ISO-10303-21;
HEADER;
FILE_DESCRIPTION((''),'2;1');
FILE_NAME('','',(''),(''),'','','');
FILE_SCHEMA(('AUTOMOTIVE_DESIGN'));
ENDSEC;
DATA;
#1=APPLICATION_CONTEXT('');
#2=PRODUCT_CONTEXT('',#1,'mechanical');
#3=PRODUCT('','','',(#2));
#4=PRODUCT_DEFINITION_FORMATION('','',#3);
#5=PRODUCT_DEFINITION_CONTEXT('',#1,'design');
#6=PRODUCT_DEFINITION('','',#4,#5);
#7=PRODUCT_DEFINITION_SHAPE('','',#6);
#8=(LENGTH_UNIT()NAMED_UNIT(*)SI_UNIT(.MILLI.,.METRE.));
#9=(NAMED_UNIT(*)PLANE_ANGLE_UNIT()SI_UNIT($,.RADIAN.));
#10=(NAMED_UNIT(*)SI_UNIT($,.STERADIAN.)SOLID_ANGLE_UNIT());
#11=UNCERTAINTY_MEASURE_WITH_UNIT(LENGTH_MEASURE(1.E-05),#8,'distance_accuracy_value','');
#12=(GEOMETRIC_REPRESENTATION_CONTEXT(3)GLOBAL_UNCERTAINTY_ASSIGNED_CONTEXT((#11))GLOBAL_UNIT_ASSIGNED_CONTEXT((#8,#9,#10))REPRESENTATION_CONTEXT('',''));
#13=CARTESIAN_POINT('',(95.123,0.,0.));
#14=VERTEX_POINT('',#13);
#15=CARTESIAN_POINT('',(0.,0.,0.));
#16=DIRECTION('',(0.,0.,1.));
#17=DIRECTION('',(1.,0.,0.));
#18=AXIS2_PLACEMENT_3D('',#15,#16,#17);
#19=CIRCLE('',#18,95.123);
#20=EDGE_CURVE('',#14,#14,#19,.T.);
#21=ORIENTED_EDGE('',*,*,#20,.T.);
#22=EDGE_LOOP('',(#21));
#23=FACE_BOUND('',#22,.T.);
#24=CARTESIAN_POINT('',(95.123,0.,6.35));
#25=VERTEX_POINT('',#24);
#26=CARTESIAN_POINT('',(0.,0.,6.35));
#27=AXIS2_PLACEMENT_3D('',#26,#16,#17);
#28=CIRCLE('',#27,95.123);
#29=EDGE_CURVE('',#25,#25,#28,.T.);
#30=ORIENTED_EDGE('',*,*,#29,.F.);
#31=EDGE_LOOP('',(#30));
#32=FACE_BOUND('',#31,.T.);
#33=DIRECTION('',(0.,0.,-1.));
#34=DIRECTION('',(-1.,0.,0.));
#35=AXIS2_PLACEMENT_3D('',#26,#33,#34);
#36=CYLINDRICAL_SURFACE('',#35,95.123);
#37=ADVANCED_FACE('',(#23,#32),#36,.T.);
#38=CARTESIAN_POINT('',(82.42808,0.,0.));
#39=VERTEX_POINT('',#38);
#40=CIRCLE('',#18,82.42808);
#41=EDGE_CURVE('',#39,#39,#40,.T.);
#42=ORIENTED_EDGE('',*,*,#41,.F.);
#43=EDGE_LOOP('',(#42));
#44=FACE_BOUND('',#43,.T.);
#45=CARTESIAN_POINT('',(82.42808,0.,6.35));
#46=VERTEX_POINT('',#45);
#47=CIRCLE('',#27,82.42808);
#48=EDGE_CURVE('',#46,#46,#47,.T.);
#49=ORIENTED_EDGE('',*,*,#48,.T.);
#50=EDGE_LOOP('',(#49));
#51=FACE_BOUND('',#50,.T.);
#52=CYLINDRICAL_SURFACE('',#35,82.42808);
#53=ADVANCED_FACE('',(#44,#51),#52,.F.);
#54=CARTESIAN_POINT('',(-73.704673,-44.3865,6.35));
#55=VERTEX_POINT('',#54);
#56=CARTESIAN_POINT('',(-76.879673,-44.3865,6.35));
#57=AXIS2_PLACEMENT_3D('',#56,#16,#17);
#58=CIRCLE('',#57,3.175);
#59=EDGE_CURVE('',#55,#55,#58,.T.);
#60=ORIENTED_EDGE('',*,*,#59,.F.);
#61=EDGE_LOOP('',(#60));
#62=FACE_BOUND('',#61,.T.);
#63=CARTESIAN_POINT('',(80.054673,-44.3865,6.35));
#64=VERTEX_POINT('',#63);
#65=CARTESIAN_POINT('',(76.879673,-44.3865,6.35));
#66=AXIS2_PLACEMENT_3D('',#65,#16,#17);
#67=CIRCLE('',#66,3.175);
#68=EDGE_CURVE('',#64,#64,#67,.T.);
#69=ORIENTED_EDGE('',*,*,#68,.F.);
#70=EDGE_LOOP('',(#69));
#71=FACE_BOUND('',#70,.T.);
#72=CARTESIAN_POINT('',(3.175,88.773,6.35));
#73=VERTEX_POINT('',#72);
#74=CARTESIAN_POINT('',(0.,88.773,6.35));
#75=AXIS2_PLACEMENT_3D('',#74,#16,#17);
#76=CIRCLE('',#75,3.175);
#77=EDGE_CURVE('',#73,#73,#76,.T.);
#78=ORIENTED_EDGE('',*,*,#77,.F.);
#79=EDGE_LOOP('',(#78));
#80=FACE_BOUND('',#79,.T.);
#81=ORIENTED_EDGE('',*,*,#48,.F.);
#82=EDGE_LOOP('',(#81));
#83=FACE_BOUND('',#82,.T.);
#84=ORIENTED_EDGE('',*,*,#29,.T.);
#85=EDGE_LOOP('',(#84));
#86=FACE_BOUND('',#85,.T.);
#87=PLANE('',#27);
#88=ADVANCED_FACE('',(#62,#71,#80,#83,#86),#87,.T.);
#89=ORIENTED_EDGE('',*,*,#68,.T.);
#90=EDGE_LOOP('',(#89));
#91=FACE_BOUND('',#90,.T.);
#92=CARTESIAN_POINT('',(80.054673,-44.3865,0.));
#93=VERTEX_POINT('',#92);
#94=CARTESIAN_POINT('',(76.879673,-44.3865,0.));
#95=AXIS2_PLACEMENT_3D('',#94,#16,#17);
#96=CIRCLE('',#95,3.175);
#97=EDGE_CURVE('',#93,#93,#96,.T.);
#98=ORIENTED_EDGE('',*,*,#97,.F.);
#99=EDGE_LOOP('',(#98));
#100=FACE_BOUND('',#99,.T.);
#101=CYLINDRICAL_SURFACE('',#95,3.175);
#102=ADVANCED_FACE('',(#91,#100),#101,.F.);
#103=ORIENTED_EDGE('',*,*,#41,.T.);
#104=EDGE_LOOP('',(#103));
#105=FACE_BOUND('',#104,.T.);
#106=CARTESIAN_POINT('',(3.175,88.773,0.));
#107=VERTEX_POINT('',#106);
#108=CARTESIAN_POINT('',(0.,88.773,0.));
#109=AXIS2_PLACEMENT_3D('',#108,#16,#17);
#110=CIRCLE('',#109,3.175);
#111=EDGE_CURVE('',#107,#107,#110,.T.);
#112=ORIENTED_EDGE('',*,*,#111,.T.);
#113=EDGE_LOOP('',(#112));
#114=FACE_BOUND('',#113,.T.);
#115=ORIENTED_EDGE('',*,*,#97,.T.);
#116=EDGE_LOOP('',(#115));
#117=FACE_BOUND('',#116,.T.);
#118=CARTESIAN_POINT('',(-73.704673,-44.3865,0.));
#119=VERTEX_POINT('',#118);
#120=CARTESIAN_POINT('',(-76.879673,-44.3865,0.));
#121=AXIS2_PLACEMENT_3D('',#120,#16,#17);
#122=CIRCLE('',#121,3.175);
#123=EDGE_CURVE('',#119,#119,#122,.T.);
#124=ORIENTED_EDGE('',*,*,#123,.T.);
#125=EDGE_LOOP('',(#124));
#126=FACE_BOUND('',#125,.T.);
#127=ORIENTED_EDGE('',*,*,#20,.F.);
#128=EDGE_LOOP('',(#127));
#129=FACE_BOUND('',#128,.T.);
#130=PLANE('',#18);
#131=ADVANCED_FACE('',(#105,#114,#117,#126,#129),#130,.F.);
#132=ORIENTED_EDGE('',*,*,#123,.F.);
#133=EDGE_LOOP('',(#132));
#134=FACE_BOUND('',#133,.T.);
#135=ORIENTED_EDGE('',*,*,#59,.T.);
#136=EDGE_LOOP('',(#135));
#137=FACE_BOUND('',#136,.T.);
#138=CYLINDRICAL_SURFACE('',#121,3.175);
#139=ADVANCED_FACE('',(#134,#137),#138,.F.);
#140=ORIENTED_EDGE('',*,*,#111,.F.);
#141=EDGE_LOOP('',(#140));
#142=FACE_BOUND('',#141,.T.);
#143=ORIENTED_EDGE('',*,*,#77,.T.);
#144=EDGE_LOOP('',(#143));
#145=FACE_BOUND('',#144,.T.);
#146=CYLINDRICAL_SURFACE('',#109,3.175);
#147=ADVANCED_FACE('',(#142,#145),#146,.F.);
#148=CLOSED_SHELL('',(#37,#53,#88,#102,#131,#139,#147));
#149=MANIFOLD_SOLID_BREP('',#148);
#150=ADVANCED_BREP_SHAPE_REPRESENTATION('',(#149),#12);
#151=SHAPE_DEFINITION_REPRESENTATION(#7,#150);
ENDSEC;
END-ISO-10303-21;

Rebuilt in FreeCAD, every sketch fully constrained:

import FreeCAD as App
import Part
import Sketcher
from FreeCAD import Vector
Q = App.Units.Quantity

doc = App.newDocument("Part")
body = doc.addObject("PartDesign::Body", "Body")

sketch1 = body.newObject("Sketcher::SketchObject", "Sketch")
sketch1.AttachmentSupport = (doc.getObject("XY_Plane"), [""])
sketch1.MapMode = "FlatFace"
sketch1.addGeometry(Part.Circle(Vector(0, 0, 0), Vector(0, 0, 1), 95), False)
sketch1.addGeometry(Part.Circle(Vector(0, 0, 0), Vector(0, 0, 1), 82), False)
sketch1.addConstraint(Sketcher.Constraint("Coincident", 0, 3, -1, 1))
sketch1.addConstraint(Sketcher.Constraint("Coincident", 1, 3, -1, 1))
sketch1.addConstraint(Sketcher.Constraint("Diameter", 0, Q("7.49 in")))
sketch1.addConstraint(Sketcher.Constraint("Diameter", 1, Q("6.4904 in")))
pad1 = body.newObject("PartDesign::Pad", "Pad")
pad1.Profile = sketch1
pad1.Length = Q("0.25 in")

sketch2 = body.newObject("Sketcher::SketchObject", "Sketch001")
sketch2.AttachmentSupport = (doc.getObject("XY_Plane"), [""])
sketch2.MapMode = "FlatFace"
sketch2.AttachmentOffset = App.Placement(Vector(0, 0, 0.25 * 25.4), App.Rotation())
sketch2.addGeometry(Part.Circle(Vector(0, 88.8, 0), Vector(0, 0, 1), 3.2), False)
sketch2.addGeometry(Part.Circle(Vector(76.9, -44.4, 0), Vector(0, 0, 1), 3.2), False)
sketch2.addGeometry(Part.Circle(Vector(-76.9, -44.4, 0), Vector(0, 0, 1), 3.2), False)
sketch2.addConstraint(Sketcher.Constraint("Equal", 0, 1))
sketch2.addConstraint(Sketcher.Constraint("Equal", 1, 2))
sketch2.addConstraint(Sketcher.Constraint("Symmetric", 1, 3, 2, 3, -2))
sketch2.addConstraint(Sketcher.Constraint("PointOnObject", 0, 3, -2))
sketch2.addConstraint(Sketcher.Constraint("Diameter", 0, Q("0.25 in")))
sketch2.addConstraint(Sketcher.Constraint("DistanceY", -1, 1, 0, 3, Q("3.495 in")))
sketch2.addConstraint(Sketcher.Constraint("DistanceY", 1, 3, -1, 1, Q("1.7475 in")))
sketch2.addConstraint(Sketcher.Constraint("DistanceX", -1, 1, 1, 3, 76.879673))
pocket1 = body.newObject("PartDesign::Pocket", "Pocket")
pocket1.Profile = sketch2
pocket1.Type = "ThroughAll"

doc.recompute()
